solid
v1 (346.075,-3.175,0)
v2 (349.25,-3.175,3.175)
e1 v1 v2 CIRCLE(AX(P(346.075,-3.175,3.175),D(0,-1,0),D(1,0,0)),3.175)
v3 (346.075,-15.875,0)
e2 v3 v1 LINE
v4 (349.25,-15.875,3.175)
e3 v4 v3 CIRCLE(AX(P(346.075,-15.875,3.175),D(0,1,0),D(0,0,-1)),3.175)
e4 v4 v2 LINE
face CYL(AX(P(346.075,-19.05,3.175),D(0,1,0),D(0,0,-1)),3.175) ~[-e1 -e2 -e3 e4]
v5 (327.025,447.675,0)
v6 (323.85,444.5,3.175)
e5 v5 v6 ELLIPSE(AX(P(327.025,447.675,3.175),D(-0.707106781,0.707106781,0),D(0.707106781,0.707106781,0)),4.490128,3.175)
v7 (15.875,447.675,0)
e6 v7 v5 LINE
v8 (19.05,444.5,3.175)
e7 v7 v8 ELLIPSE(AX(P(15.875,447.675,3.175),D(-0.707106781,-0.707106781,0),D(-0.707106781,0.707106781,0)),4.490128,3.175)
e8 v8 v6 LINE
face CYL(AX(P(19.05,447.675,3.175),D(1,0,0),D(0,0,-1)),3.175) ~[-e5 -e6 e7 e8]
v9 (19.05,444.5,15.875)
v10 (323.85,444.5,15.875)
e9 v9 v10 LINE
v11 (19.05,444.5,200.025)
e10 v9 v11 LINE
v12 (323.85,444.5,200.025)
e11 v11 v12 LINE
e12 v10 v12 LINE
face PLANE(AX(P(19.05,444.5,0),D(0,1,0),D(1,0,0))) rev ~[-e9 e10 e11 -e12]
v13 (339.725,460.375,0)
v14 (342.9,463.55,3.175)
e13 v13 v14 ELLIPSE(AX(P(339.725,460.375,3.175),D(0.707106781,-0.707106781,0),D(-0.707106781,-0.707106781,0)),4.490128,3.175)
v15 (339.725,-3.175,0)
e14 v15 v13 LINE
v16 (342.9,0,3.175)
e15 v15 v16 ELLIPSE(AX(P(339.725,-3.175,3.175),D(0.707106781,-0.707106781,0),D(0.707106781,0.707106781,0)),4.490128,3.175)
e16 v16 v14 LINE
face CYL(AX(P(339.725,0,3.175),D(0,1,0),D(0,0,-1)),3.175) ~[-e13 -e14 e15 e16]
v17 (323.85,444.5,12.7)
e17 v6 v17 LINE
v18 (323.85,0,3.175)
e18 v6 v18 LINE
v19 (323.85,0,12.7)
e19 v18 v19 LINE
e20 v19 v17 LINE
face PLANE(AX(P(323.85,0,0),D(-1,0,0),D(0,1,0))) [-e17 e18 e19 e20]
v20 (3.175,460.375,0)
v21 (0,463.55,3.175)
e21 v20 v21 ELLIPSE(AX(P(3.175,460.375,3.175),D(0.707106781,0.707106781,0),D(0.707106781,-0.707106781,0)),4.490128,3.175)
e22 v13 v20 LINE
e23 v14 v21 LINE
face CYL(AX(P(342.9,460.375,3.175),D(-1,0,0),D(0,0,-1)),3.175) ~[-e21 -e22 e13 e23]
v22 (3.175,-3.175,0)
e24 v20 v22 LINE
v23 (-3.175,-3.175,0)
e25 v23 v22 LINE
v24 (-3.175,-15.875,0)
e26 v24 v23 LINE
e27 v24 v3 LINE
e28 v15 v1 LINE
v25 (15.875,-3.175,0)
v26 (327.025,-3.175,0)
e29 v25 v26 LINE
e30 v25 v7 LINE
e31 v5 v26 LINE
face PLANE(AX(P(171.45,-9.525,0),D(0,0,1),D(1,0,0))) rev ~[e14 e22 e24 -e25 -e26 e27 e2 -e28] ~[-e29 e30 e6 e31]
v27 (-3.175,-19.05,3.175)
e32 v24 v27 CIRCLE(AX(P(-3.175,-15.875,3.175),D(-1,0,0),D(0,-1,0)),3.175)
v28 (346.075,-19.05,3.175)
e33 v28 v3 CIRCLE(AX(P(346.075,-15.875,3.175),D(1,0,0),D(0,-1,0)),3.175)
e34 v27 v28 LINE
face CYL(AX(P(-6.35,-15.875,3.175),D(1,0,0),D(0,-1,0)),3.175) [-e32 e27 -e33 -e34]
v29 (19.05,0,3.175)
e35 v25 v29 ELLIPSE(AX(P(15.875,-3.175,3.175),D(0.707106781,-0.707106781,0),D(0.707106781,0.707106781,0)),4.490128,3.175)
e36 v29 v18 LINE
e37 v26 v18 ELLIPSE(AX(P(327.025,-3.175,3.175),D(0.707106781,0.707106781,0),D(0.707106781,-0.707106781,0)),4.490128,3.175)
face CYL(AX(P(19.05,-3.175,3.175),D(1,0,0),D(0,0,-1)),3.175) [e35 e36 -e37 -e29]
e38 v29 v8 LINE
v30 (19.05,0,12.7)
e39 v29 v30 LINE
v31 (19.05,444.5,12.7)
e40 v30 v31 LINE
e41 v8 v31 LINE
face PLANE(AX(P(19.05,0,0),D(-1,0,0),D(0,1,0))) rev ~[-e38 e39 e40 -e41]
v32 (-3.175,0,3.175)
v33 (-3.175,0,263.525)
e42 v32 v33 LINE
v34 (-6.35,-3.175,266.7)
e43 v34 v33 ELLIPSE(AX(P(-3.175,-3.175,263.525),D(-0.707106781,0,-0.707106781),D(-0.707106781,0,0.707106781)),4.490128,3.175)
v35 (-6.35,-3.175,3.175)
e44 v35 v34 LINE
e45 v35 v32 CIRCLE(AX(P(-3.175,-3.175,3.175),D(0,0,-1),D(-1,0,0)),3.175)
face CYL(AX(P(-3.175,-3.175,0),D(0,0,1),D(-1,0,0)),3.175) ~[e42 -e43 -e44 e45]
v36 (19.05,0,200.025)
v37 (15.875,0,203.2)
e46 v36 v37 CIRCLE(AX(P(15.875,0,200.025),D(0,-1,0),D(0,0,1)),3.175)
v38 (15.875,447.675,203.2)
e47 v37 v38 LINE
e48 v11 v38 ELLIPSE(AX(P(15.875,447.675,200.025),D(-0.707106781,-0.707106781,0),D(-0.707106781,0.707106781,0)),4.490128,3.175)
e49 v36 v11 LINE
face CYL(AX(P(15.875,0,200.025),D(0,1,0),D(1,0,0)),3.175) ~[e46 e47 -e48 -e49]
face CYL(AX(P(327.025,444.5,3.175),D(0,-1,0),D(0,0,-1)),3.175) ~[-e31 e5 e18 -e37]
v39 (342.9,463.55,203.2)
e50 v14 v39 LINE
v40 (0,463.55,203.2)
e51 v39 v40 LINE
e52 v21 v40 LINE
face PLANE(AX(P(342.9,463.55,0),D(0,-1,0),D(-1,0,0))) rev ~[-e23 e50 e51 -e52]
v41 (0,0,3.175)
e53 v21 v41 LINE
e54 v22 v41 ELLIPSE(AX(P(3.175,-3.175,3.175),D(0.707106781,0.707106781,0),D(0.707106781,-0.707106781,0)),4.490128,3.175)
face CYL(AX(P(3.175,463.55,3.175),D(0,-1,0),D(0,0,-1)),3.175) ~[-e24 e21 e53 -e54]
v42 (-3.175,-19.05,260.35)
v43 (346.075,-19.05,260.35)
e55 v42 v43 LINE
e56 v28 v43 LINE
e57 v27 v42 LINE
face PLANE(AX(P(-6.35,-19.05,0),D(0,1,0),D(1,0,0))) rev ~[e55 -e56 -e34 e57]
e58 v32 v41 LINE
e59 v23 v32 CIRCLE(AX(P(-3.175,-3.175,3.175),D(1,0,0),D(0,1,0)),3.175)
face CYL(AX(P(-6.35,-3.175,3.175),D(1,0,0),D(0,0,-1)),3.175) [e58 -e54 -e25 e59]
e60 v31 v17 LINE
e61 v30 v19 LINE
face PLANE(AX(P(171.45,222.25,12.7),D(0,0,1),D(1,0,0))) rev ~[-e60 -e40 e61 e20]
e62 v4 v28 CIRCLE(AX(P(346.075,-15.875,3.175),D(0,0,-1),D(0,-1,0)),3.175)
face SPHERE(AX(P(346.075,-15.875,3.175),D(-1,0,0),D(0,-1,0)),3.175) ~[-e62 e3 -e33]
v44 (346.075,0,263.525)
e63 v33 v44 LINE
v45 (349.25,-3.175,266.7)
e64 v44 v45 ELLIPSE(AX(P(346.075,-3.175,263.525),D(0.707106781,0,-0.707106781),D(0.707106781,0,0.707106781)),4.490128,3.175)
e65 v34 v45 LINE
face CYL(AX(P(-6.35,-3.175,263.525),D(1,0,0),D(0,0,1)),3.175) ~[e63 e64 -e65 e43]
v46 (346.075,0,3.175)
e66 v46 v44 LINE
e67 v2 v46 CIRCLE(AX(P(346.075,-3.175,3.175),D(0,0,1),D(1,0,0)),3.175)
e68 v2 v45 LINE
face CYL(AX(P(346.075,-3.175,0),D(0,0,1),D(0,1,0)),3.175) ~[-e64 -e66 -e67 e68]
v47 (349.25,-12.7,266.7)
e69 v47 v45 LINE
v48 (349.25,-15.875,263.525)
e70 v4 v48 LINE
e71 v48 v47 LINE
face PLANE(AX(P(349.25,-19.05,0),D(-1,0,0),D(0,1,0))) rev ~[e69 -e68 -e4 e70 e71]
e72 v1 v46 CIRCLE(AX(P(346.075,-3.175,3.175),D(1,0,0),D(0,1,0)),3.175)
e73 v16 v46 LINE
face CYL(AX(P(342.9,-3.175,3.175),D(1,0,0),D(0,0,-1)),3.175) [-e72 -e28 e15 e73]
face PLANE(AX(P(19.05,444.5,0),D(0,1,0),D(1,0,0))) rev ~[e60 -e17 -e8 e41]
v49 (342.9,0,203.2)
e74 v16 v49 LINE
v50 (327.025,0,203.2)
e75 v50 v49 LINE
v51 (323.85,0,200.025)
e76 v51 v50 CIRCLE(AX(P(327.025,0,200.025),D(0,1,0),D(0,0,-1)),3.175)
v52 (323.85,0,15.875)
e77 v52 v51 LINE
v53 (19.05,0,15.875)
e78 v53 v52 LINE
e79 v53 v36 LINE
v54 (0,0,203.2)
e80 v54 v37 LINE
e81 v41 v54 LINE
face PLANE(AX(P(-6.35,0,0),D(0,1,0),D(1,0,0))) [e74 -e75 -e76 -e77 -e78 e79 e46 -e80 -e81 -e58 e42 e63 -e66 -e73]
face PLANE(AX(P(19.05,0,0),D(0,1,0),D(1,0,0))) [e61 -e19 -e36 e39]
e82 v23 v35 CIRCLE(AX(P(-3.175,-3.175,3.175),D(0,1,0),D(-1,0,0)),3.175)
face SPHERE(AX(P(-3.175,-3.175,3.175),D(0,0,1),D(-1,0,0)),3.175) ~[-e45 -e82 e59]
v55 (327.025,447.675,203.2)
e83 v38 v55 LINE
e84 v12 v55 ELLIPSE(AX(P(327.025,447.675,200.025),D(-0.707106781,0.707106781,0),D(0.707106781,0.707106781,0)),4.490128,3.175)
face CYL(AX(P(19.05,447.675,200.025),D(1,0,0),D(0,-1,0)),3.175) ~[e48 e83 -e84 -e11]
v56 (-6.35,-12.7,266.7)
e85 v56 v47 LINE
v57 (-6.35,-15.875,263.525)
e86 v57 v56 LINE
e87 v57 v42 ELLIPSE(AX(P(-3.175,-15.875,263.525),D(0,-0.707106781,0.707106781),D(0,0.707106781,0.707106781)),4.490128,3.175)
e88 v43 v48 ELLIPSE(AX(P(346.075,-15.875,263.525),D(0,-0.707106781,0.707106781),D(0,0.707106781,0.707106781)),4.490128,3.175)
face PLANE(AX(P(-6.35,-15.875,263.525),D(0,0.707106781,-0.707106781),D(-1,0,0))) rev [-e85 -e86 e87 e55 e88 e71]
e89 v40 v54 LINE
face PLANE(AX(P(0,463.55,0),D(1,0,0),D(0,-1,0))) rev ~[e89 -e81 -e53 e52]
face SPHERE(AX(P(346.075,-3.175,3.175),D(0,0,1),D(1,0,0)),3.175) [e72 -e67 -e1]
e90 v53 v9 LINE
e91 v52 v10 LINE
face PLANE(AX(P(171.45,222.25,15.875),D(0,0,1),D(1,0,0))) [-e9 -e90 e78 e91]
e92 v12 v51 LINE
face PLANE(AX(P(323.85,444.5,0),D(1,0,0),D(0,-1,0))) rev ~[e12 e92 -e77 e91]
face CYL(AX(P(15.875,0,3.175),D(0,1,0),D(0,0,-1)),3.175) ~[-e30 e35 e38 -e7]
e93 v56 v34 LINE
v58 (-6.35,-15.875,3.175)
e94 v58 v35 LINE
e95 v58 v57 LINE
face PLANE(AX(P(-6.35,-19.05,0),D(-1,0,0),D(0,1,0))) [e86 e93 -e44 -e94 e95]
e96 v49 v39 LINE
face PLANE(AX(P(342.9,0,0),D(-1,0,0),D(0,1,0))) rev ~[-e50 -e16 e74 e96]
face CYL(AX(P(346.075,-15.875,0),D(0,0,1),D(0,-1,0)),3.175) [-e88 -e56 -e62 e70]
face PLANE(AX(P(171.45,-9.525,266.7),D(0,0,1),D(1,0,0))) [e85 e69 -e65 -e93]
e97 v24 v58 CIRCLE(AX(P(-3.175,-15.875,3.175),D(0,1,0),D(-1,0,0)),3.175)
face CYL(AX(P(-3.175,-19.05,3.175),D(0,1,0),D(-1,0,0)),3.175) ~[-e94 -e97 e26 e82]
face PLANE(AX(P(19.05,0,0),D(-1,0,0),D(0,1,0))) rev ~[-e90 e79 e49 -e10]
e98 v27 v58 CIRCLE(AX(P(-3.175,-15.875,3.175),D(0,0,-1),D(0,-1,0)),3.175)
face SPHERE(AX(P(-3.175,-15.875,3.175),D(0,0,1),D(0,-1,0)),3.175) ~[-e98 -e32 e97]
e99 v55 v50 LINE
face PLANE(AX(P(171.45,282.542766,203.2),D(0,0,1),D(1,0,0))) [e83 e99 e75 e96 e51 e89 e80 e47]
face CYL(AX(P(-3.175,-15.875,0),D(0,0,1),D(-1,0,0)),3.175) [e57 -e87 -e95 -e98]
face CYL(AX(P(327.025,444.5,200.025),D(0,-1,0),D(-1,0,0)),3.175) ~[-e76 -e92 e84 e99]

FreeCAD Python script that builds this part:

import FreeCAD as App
import Part
import Sketcher
from FreeCAD import Vector
Q = App.Units.Quantity


def edges_at(feature, points):
    """Names of the edges that pass closest to the given points."""
    edges = feature.Shape.Edges
    near = lambda p: min(range(len(edges)), key=lambda i: edges[i].distToShape(Part.Vertex(*p))[0])
    return sorted({f"Edge{near(p) + 1}" for p in points})


def add_polygon(sketch, points):
    """Adds a closed chain of lines whose ends are joined by coincident constraints."""
    first, n = sketch.GeometryCount, len(points)
    for a, b in zip(points, points[1:] + points[:1]):
        sketch.addGeometry(Part.LineSegment(App.Vector(*a, 0), App.Vector(*b, 0)), False)
    for i in range(n):
        sketch.addConstraint(Sketcher.Constraint("Coincident", first + i, 2, first + (i + 1) % n, 1))

doc = App.newDocument("Part")
body = doc.addObject("PartDesign::Body", "Body")

sketch1 = doc.addObject("Sketcher::SketchObject", "Sketch")
body.addObject(sketch1)
sketch1.AttachmentSupport = (doc.XY_Plane, [""])
sketch1.MapMode = "FlatFace"
add_polygon(sketch1, [(0, 463.55), (0, 0), (19.05, 0), (19.05, 444.5), (323.85, 444.5), (323.85, 0), (342.9, 0), (342.9, 463.55)])
sketch1.addConstraint(Sketcher.Constraint("Vertical", 0))
sketch1.addConstraint(Sketcher.Constraint("Horizontal", 1))
sketch1.addConstraint(Sketcher.Constraint("Vertical", 2))
sketch1.addConstraint(Sketcher.Constraint("Horizontal", 3))
sketch1.addConstraint(Sketcher.Constraint("Vertical", 4))
sketch1.addConstraint(Sketcher.Constraint("Horizontal", 5))
sketch1.addConstraint(Sketcher.Constraint("Vertical", 6))
sketch1.addConstraint(Sketcher.Constraint("Horizontal", 7))
sketch1.addConstraint(Sketcher.Constraint("Coincident", 0, 2, -1, 1))
sketch1.addConstraint(Sketcher.Constraint("PointOnObject", 4, 2, -1))
sketch1.addConstraint(Sketcher.Constraint("Equal", 1, 5))
sketch1.addConstraint(Sketcher.Constraint("DistanceX", 3, 1, 3, 2, Q("12 in")))
sketch1.addConstraint(Sketcher.Constraint("DistanceX", 7, 2, 7, 1, Q("13.5 in")))
sketch1.addConstraint(Sketcher.Constraint("DistanceY", 2, 1, 2, 2, Q("17.5 in")))
sketch1.addConstraint(Sketcher.Constraint("DistanceY", 0, 2, 0, 1, Q("18.25 in")))
pad1 = doc.addObject("PartDesign::Pad", "Pad")
body.addObject(pad1)
pad1.Profile = sketch1
pad1.Length = Q("8 in")

sketch2 = doc.addObject("Sketcher::SketchObject", "Sketch001")
body.addObject(sketch2)
sketch2.AttachmentSupport = (doc.XY_Plane, [""])
sketch2.MapMode = "FlatFace"
add_polygon(sketch2, [(-6.35, 0), (-6.35, -19.05), (349.25, -19.05), (349.25, 0)])
sketch2.addConstraint(Sketcher.Constraint("Vertical", 0))
sketch2.addConstraint(Sketcher.Constraint("Horizontal", 1))
sketch2.addConstraint(Sketcher.Constraint("Vertical", 2))
sketch2.addConstraint(Sketcher.Constraint("Horizontal", 3))
sketch2.addConstraint(Sketcher.Constraint("PointOnObject", 2, 2, -1))
sketch2.addConstraint(Sketcher.Constraint("DistanceX", 1, 1, 1, 2, Q("14 in")))
sketch2.addConstraint(Sketcher.Constraint("DistanceY", 0, 2, 0, 1, Q("0.75 in")))
sketch2.addConstraint(Sketcher.Constraint("DistanceX", 0, 2, -1, 1, Q("0.25 in")))
pad2 = doc.addObject("PartDesign::Pad", "Pad001")
body.addObject(pad2)
pad2.Profile = sketch2
pad2.Length = Q("10.5 in")
doc.recompute()

chamfer = doc.addObject("PartDesign::Chamfer", "Chamfer")
body.addObject(chamfer)
chamfer.Base = (pad2, edges_at(pad2, [(171.45, -19.05, 266.7)]))
chamfer.Size = Q("0.25 in")
doc.recompute()

fillet = doc.addObject("PartDesign::Fillet", "Fillet")
body.addObject(fillet)
fillet.Base = (chamfer, edges_at(chamfer, [
    (-6.35, -19.05, 130.175),
    (-6.35, 0, 133.35),
    (171.45, 0, 0),
    (171.45, -19.05, 0),
    (0, 231.775, 0),
    (19.05, 222.25, 0),
    (171.45, 463.55, 0),
    (171.45, 444.5, 0),
    (323.85, 222.25, 0),
    (342.9, 231.775, 0),
    (349.25, 0, 133.35),
    (349.25, -19.05, 130.175),
    (19.05, 222.25, 203.2),
    (171.45, 444.5, 203.2),
    (323.85, 222.25, 203.2),
    (-6.35, -9.525, 0),
    (349.25, -9.525, 0),
    (346.075, 0, 0),
    (-3.175, 0, 0),
    (171.45, 0, 266.7),
]))
fillet.Radius = Q("0.125 in")

sketch3 = doc.addObject("Sketcher::SketchObject", "Sketch002")
body.addObject(sketch3)
sketch3.AttachmentSupport = (doc.XY_Plane, [""])
sketch3.MapMode = "FlatFace"
add_polygon(sketch3, [(19.05, 444.5), (19.05, 0), (323.85, 0), (323.85, 444.5)])
sketch3.addConstraint(Sketcher.Constraint("Vertical", 0))
sketch3.addConstraint(Sketcher.Constraint("Horizontal", 1))
sketch3.addConstraint(Sketcher.Constraint("Vertical", 2))
sketch3.addConstraint(Sketcher.Constraint("Horizontal", 3))
sketch3.addConstraint(Sketcher.Constraint("PointOnObject", 0, 2, -1))
sketch3.addConstraint(Sketcher.Constraint("DistanceX", 1, 1, 1, 2, Q("12 in")))
sketch3.addConstraint(Sketcher.Constraint("DistanceY", 0, 2, 0, 1, Q("17.5 in")))
sketch3.addConstraint(Sketcher.Constraint("DistanceX", -1, 1, 0, 2, Q("0.75 in")))
pad3 = doc.addObject("PartDesign::Pad", "Pad002")
body.addObject(pad3)
pad3.Profile = sketch3
pad3.Length = Q("0.625 in")

sketch4 = doc.addObject("Sketcher::SketchObject", "Sketch003")
body.addObject(sketch4)
sketch4.AttachmentSupport = (doc.XY_Plane, [""])
sketch4.MapMode = "FlatFace"
add_polygon(sketch4, [(19.05, 444.5), (19.05, 0), (323.85, 0), (323.85, 444.5)])
sketch4.addConstraint(Sketcher.Constraint("Vertical", 0))
sketch4.addConstraint(Sketcher.Constraint("Horizontal", 1))
sketch4.addConstraint(Sketcher.Constraint("Vertical", 2))
sketch4.addConstraint(Sketcher.Constraint("Horizontal", 3))
sketch4.addConstraint(Sketcher.Constraint("PointOnObject", 0, 2, -1))
sketch4.addConstraint(Sketcher.Constraint("DistanceX", 1, 1, 1, 2, Q("12 in")))
sketch4.addConstraint(Sketcher.Constraint("DistanceY", 0, 2, 0, 1, Q("17.5 in")))
sketch4.addConstraint(Sketcher.Constraint("DistanceX", -1, 1, 0, 2, Q("0.75 in")))
pocket1 = doc.addObject("PartDesign::Pocket", "Pocket")
body.addObject(pocket1)
pocket1.Profile = sketch4
pocket1.Length = Q("0.5 in")
pocket1.Reversed = True

doc.recompute()
